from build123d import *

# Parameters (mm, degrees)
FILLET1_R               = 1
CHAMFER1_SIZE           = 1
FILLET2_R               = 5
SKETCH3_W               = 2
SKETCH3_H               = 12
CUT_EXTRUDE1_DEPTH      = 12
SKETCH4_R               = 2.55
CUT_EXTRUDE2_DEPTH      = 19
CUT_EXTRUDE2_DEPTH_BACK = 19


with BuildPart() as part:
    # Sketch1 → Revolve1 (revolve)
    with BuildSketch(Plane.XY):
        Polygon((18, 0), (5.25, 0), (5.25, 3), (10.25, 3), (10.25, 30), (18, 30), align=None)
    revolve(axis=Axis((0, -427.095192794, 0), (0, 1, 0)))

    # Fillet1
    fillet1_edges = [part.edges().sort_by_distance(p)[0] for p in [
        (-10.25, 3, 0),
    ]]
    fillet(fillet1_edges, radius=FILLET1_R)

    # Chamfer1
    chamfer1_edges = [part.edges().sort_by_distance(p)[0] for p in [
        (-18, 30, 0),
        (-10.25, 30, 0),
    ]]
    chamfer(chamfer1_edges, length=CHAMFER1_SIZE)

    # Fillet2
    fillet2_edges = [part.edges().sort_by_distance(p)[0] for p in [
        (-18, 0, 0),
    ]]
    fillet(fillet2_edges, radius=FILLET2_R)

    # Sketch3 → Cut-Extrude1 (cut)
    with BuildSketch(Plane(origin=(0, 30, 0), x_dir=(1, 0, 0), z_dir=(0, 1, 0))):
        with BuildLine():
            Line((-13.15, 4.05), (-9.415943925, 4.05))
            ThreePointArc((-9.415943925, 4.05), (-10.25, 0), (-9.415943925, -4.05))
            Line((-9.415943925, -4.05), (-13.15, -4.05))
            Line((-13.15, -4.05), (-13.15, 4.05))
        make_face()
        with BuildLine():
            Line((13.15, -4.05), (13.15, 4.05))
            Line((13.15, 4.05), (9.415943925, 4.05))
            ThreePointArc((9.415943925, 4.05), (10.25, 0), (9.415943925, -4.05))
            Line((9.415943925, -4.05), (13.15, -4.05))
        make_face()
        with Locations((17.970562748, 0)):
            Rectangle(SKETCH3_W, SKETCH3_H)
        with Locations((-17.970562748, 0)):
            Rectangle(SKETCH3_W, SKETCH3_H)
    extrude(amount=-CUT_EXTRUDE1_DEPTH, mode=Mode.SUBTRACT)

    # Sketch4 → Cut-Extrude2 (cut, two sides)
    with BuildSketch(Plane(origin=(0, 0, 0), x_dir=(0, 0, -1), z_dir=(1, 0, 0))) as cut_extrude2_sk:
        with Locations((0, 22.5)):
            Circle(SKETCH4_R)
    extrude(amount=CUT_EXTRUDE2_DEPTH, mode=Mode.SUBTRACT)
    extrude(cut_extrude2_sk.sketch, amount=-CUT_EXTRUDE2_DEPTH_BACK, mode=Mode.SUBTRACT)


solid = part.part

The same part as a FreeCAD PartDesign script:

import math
import FreeCAD as App
import Part
import Sketcher
from FreeCAD import Vector


def edges_at(feature, points):
    """Names of the edges that pass closest to the given points."""
    edges = feature.Shape.Edges
    near = lambda p: min(range(len(edges)), key=lambda i: edges[i].distToShape(Part.Vertex(*p))[0])
    return sorted({f"Edge{near(p) + 1}" for p in points})


def add_polygon(sketch, points):
    """Adds a closed chain of lines whose ends are joined by coincident constraints."""
    first, n = sketch.GeometryCount, len(points)
    for a, b in zip(points, points[1:] + points[:1]):
        sketch.addGeometry(Part.LineSegment(App.Vector(*a, 0), App.Vector(*b, 0)), False)
    for i in range(n):
        sketch.addConstraint(Sketcher.Constraint("Coincident", first + i, 2, first + (i + 1) % n, 1))

doc = App.newDocument("Part")
params = doc.addObject("Spreadsheet::Sheet", "Params")
for row, (alias, value) in enumerate([
    ("sketch1_width", "5 mm"),
    ("sketch1_height", "30 mm"),
    ("sketch1_height2", "27 mm"),
    ("sketch1_width2", "12.75 mm"),
    ("revolution_angle", "360 deg"),
    ("fillet_radius", "1 mm"),
    ("chamfer_size", "1 mm"),
    ("fillet2_radius", "5 mm"),
    ("sketch2_width", "2 mm"),
    ("sketch2_height", "12 mm"),
    ("sketch2_radius", "10.25 mm"),
    ("sketch2_height2", "8.1 mm"),
    ("pocket1_length", "12 mm"),
    ("sketch3_diameter", "5.1 mm"),
], start=1):
    params.set(f"A{row}", alias)
    params.set(f"B{row}", "=" + value)
    params.setAlias(f"B{row}", alias)

body = doc.addObject("PartDesign::Body", "Body")

sketch1 = body.newObject("Sketcher::SketchObject", "Sketch")
sketch1.AttachmentSupport = (doc.getObject("XY_Plane"), [""])
sketch1.MapMode = "FlatFace"
add_polygon(sketch1, [(5.25, 0), (18, 0), (18, 30), (10.25, 30), (10.25, 3), (5.25, 3)])
sketch1.addConstraint(Sketcher.Constraint("Horizontal", 0))
sketch1.addConstraint(Sketcher.Constraint("Vertical", 1))
sketch1.addConstraint(Sketcher.Constraint("Horizontal", 2))
sketch1.addConstraint(Sketcher.Constraint("Vertical", 3))
sketch1.addConstraint(Sketcher.Constraint("Horizontal", 4))
sketch1.addConstraint(Sketcher.Constraint("Vertical", 5))
sketch1.addConstraint(Sketcher.Constraint("PointOnObject", 0, 2, -1))
sketch1.addConstraint(Sketcher.Constraint("DistanceX", 4, 2, 4, 1, 5.0))
sketch1.addConstraint(Sketcher.Constraint("DistanceY", 1, 1, 1, 2, 30.0))
sketch1.addConstraint(Sketcher.Constraint("DistanceY", 3, 2, 3, 1, 27.0))
sketch1.addConstraint(Sketcher.Constraint("DistanceX", -1, 1, 0, 2, 18.0))
sketch1.addConstraint(Sketcher.Constraint("DistanceX", 0, 1, 0, 2, 12.75))
sketch1.setExpression("Constraints[13]", "Params.sketch1_width")
sketch1.setExpression("Constraints[14]", "Params.sketch1_height")
sketch1.setExpression("Constraints[15]", "Params.sketch1_height2")
sketch1.setExpression("Constraints[17]", "Params.sketch1_width2")
revolution = body.newObject("PartDesign::Revolution", "Revolution")
revolution.Profile = sketch1
revolution.ReferenceAxis = (sketch1, ["V_Axis"])
revolution.setExpression("Angle", "Params.revolution_angle")
doc.recompute()

fillet = body.newObject("PartDesign::Fillet", "Fillet")
fillet.Base = (revolution, edges_at(revolution, [(-10.25, 3, 0)]))
fillet.setExpression("Radius", "Params.fillet_radius")
doc.recompute()

chamfer = body.newObject("PartDesign::Chamfer", "Chamfer")
chamfer.Base = (fillet, edges_at(fillet, [(-18, 30, 0), (-10.25, 30, 0)]))
chamfer.setExpression("Size", "Params.chamfer_size")
doc.recompute()

fillet2 = body.newObject("PartDesign::Fillet", "Fillet001")
fillet2.Base = (chamfer, edges_at(chamfer, [(-18, 0, 0)]))
fillet2.setExpression("Radius", "Params.fillet2_radius")

sketch2 = body.newObject("Sketcher::SketchObject", "Sketch001")
sketch2.AttachmentSupport = (doc.getObject("XZ_Plane"), [""])
sketch2.MapMode = "FlatFace"
sketch2.AttachmentOffset = App.Placement(Vector(0, 0, -30), App.Rotation())
sketch2.addGeometry(Part.LineSegment(Vector(-9.415944, -4.05, 0), Vector(-13.15, -4.05, 0)), False)
sketch2.addGeometry(Part.LineSegment(Vector(-13.15, -4.05, 0), Vector(-13.15, 4.05, 0)), False)
sketch2.addGeometry(Part.LineSegment(Vector(-13.15, 4.05, 0), Vector(-9.415944, 4.05, 0)), False)
sketch2.addGeometry(Part.ArcOfCircle(Part.Circle(Vector(0, 0, 0), Vector(0, 0, 1), 10.25), math.radians(156.72642), math.radians(203.27358)), False)
sketch2.addGeometry(Part.LineSegment(Vector(13.15, 4.05, 0), Vector(13.15, -4.05, 0)), False)
sketch2.addGeometry(Part.LineSegment(Vector(13.15, -4.05, 0), Vector(9.415944, -4.05, 0)), False)
sketch2.addGeometry(Part.ArcOfCircle(Part.Circle(Vector(0, 0, 0), Vector(0, 0, 1), 10.25), math.radians(-23.27358), math.radians(23.27358)), False)
sketch2.addGeometry(Part.LineSegment(Vector(9.415944, 4.05, 0), Vector(13.15, 4.05, 0)), False)
add_polygon(sketch2, [(16.970563, -6), (16.970563, 6), (18.970563, 6), (18.970563, -6)])
add_polygon(sketch2, [(-18.970563, -6), (-18.970563, 6), (-16.970563, 6), (-16.970563, -6)])
sketch2.addConstraint(Sketcher.Constraint("Coincident", 0, 2, 1, 1))
sketch2.addConstraint(Sketcher.Constraint("Coincident", 1, 2, 2, 1))
sketch2.addConstraint(Sketcher.Constraint("Coincident", 2, 2, 3, 1))
sketch2.addConstraint(Sketcher.Constraint("Coincident", 3, 2, 0, 1))
sketch2.addConstraint(Sketcher.Constraint("Coincident", 4, 2, 5, 1))
sketch2.addConstraint(Sketcher.Constraint("Coincident", 5, 2, 6, 1))
sketch2.addConstraint(Sketcher.Constraint("Coincident", 6, 2, 7, 1))
sketch2.addConstraint(Sketcher.Constraint("Coincident", 7, 2, 4, 1))
sketch2.addConstraint(Sketcher.Constraint("Horizontal", 0))
sketch2.addConstraint(Sketcher.Constraint("Vertical", 1))
sketch2.addConstraint(Sketcher.Constraint("Horizontal", 2))
sketch2.addConstraint(Sketcher.Constraint("Vertical", 4))
sketch2.addConstraint(Sketcher.Constraint("Horizontal", 5))
sketch2.addConstraint(Sketcher.Constraint("Horizontal", 7))
sketch2.addConstraint(Sketcher.Constraint("Vertical", 8))
sketch2.addConstraint(Sketcher.Constraint("Horizontal", 9))
sketch2.addConstraint(Sketcher.Constraint("Vertical", 10))
sketch2.addConstraint(Sketcher.Constraint("Horizontal", 11))
sketch2.addConstraint(Sketcher.Constraint("Vertical", 12))
sketch2.addConstraint(Sketcher.Constraint("Horizontal", 13))
sketch2.addConstraint(Sketcher.Constraint("Vertical", 14))
sketch2.addConstraint(Sketcher.Constraint("Horizontal", 15))
sketch2.addConstraint(Sketcher.Constraint("Coincident", 3, 3, -1, 1))
sketch2.addConstraint(Sketcher.Constraint("Coincident", 6, 3, -1, 1))
sketch2.addConstraint(Sketcher.Constraint("Equal", 3, 6))
sketch2.addConstraint(Sketcher.Constraint("Symmetric", 1, 2, 4, 2, -1, 1))
sketch2.addConstraint(Sketcher.Constraint("Symmetric", 10, 2, 12, 2, -1, 1))
sketch2.addConstraint(Sketcher.Constraint("Symmetric", 8, 2, 14, 2, -1, 1))
sketch2.addConstraint(Sketcher.Constraint("Horizontal", 3, 2, 4, 2))
sketch2.addConstraint(Sketcher.Constraint("Horizontal", 2, 2, 6, 2))
sketch2.addConstraint(Sketcher.Constraint("Horizontal", 9, 2, 12, 2))
sketch2.addConstraint(Sketcher.Constraint("DistanceX", 9, 1, 9, 2, 2.0))
sketch2.addConstraint(Sketcher.Constraint("DistanceY", 8, 1, 8, 2, 12.0))
sketch2.addConstraint(Sketcher.Constraint("Radius", 3, 10.25))
sketch2.addConstraint(Sketcher.Constraint("DistanceY", 1, 1, 1, 2, 8.1))
sketch2.addConstraint(Sketcher.Constraint("DistanceX", 0, 2, 4, 2, 26.3))
sketch2.addConstraint(Sketcher.Constraint("DistanceX", 6, 2, 8, 2, 7.554619))
sketch2.setExpression("Constraints[39]", "Params.sketch2_width")
sketch2.setExpression("Constraints[40]", "Params.sketch2_height")
sketch2.setExpression("Constraints[41]", "Params.sketch2_radius")
sketch2.setExpression("Constraints[42]", "Params.sketch2_height2")
pocket1 = body.newObject("PartDesign::Pocket", "Pocket")
pocket1.Profile = sketch2
pocket1.setExpression("Length", "Params.pocket1_length")
pocket1.Reversed = True

sketch3 = body.newObject("Sketcher::SketchObject", "Sketch002")
sketch3.AttachmentSupport = (doc.getObject("YZ_Plane"), [""])
sketch3.MapMode = "FlatFace"
sketch3.addGeometry(Part.Circle(Vector(22.5, 0, 0), Vector(0, 0, 1), 2.55), False)
sketch3.addConstraint(Sketcher.Constraint("PointOnObject", 0, 3, -1))
sketch3.addConstraint(Sketcher.Constraint("Diameter", 0, 5.1))
sketch3.addConstraint(Sketcher.Constraint("DistanceX", -1, 1, 0, 3, 22.5))
sketch3.setExpression("Constraints[1]", "Params.sketch3_diameter")
pocket2 = body.newObject("PartDesign::Pocket", "Pocket001")
pocket2.Profile = sketch3
pocket2.Type = "ThroughAll"
pocket2.Midplane = True

doc.recompute()
